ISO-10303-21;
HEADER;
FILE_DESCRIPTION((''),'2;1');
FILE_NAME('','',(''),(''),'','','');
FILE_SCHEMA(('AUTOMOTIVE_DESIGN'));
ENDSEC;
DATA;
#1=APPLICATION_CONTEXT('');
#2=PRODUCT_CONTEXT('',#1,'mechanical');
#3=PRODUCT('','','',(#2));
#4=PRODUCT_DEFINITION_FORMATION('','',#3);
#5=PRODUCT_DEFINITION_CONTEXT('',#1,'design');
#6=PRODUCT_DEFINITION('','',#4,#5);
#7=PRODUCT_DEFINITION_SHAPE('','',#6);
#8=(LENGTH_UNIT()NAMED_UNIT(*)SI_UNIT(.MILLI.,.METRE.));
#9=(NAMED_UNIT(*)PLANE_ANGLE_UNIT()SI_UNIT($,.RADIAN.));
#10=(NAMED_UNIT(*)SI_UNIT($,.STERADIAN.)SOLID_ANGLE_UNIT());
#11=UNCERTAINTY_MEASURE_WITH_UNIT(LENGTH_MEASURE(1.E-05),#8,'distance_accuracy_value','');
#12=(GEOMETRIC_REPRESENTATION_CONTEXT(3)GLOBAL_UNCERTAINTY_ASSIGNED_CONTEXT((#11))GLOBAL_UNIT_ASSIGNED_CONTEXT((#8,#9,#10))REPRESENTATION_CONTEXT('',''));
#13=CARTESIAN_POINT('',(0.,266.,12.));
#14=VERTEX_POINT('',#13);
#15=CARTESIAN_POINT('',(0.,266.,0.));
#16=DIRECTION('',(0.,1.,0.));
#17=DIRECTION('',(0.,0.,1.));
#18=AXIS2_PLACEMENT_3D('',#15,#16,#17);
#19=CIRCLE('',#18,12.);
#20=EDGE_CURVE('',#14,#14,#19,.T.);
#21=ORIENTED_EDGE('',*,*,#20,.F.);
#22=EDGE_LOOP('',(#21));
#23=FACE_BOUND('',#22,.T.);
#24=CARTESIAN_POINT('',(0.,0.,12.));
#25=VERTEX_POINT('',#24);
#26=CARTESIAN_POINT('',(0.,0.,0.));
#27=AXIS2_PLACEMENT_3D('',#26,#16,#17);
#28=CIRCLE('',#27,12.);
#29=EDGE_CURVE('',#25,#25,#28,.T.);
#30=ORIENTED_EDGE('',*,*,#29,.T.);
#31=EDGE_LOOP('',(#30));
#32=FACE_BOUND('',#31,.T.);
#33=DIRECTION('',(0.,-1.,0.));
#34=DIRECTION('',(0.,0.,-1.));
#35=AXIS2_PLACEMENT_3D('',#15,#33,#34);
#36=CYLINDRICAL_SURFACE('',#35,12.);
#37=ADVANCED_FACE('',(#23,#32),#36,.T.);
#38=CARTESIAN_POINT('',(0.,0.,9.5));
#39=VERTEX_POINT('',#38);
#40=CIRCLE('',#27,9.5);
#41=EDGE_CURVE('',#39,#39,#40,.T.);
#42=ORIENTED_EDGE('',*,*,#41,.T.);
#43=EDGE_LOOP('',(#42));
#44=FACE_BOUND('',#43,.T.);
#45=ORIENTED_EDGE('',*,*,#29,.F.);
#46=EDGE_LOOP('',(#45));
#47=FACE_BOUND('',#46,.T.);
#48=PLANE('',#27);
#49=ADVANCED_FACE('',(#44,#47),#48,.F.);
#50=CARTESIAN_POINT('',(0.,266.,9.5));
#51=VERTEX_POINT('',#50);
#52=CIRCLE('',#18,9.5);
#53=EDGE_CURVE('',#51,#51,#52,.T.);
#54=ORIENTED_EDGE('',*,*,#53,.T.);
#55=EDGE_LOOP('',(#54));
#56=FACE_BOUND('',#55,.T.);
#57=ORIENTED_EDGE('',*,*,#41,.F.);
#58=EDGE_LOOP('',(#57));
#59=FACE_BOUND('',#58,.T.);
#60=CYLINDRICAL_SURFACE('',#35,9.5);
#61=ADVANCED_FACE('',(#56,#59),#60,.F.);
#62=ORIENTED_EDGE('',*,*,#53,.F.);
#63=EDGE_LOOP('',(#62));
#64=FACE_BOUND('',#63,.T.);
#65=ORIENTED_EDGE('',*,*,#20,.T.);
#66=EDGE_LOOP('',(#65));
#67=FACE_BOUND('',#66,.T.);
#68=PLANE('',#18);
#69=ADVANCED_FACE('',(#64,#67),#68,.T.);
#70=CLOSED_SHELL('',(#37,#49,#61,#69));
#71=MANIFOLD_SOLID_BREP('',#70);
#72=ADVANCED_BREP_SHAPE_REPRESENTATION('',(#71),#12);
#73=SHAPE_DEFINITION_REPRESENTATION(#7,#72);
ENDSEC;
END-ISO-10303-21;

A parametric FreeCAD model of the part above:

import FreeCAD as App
import Part
import Sketcher

V = App.Vector
Q = App.Units.Quantity

doc = App.newDocument("Part")
body = doc.addObject("PartDesign::Body", "Body")

# Sketch on XZ plane
sketch1 = body.newObject("Sketcher::SketchObject", "Sketch")
sketch1.AttachmentSupport = (doc.getObject("XZ_Plane"), [""])
sketch1.MapMode = "FlatFace"
sketch1.addGeometry([
    Part.Circle(V(0, 0, 0), V(0, 0, 1), 12),
    Part.Circle(V(0, 0, 0), V(0, 0, 1), 10),
], False)
sketch1.addConstraint([
    Sketcher.Constraint("Coincident", 0, 3, -1, 1),
    Sketcher.Constraint("Coincident", 1, 3, -1, 1),
    Sketcher.Constraint("Diameter", 0, Q("24 mm")),
    Sketcher.Constraint("Diameter", 1, Q("19 mm")),
])
pad1 = body.newObject("PartDesign::Pad", "Pad")
pad1.Profile = sketch1
pad1.Length = 266
pad1.Reversed = True

doc.recompute()
